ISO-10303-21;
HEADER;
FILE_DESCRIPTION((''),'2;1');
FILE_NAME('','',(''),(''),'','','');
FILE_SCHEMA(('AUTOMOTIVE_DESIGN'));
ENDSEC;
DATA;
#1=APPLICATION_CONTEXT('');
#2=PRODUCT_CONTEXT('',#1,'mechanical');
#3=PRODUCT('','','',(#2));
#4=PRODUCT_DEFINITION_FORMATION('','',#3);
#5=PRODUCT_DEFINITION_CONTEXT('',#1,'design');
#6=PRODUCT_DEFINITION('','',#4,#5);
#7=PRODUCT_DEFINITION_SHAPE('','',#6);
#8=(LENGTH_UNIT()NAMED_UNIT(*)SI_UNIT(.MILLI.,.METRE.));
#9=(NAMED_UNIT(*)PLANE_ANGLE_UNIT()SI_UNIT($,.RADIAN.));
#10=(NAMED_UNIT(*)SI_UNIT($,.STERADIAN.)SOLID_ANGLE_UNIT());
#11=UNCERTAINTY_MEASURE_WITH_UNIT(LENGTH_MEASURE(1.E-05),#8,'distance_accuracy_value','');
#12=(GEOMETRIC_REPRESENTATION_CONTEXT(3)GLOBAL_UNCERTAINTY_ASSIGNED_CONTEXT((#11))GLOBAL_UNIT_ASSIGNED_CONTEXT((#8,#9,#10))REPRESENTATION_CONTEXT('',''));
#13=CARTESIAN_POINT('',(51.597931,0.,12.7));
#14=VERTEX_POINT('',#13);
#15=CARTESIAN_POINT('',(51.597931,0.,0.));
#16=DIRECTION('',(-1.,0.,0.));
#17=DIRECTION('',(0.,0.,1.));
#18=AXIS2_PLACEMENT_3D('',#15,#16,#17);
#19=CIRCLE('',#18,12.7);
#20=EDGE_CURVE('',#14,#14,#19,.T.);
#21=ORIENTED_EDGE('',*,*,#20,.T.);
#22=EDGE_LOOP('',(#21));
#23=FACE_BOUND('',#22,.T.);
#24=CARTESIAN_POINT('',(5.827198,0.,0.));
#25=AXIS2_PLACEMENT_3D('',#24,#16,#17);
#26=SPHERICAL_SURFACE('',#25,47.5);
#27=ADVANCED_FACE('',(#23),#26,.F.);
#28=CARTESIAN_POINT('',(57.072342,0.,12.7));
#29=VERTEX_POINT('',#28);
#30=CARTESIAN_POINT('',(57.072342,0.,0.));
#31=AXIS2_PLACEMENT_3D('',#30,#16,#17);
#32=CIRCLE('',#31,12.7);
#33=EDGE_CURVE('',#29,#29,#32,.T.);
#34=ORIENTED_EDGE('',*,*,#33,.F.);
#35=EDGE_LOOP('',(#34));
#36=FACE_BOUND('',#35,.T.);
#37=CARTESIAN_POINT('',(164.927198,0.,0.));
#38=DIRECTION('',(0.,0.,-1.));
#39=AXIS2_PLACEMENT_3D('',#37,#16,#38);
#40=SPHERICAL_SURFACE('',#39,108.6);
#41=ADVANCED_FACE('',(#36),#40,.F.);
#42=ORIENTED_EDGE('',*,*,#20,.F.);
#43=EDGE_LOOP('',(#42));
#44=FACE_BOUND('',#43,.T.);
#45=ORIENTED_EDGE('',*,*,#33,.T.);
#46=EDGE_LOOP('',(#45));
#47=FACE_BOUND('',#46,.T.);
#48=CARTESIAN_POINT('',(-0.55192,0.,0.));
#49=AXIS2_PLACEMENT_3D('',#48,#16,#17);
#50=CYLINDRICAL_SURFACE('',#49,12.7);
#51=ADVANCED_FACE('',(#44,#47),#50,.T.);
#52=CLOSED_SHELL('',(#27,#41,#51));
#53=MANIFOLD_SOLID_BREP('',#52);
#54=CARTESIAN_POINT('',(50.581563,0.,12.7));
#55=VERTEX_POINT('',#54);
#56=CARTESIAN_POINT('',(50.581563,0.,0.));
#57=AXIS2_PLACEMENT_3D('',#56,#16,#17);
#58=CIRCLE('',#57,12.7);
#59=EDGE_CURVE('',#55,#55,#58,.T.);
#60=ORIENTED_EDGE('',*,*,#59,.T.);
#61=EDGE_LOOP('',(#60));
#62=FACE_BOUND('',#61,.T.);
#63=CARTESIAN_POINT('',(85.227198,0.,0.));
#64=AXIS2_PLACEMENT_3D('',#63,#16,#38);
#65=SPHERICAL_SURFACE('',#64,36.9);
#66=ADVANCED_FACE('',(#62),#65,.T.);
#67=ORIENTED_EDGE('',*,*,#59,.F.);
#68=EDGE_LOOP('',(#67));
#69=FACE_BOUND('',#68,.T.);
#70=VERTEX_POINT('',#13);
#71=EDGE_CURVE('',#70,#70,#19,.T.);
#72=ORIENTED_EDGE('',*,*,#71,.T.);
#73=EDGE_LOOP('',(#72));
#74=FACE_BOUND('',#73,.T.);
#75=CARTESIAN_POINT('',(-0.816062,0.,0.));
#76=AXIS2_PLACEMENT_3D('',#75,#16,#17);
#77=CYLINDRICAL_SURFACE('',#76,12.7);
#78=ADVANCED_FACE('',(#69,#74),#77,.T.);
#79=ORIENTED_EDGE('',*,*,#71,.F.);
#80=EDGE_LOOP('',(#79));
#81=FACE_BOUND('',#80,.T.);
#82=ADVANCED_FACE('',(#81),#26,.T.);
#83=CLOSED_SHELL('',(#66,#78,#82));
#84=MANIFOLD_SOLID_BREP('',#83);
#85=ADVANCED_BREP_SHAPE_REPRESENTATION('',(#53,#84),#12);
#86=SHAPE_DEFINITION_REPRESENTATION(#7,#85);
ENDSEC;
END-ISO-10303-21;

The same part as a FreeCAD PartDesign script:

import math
import FreeCAD as App
import Part
import Sketcher

doc = App.newDocument("Part")
body = doc.addObject("PartDesign::Body", "Body")

# Sketch on XZ plane
sketch1 = body.newObject("Sketcher::SketchObject", "Sketch")
sketch1.AttachmentSupport = (doc.getObject("XZ_Plane"), [""])
sketch1.MapMode = "FlatFace"
sketch1.addGeometry([
    Part.ArcOfCircle(Part.Circle(App.Vector(85.2, 0, 0), App.Vector(0, 0, 1), 36.9), math.radians(180), math.radians(200)),
    Part.LineSegment(App.Vector(48.3, 0, 0), App.Vector(53.3, 0, 0)),
    Part.ArcOfCircle(Part.Circle(App.Vector(5.8, 0, 0), App.Vector(0, 0, 1), 47.5), math.radians(-15.51), math.radians(0)),
    Part.LineSegment(App.Vector(51.6, -12.7, 0), App.Vector(50.6, -12.7, 0)),
], False)
sketch1.addConstraint([
    Sketcher.Constraint("Coincident", 0, 1, 1, 1),
    Sketcher.Constraint("Coincident", 1, 2, 2, 2),
    Sketcher.Constraint("Coincident", 2, 1, 3, 1),
    Sketcher.Constraint("Coincident", 3, 2, 0, 2),
    Sketcher.Constraint("Horizontal", 1),
    Sketcher.Constraint("Horizontal", 3),
    Sketcher.Constraint("PointOnObject", 0, 3, -1),
    Sketcher.Constraint("PointOnObject", 2, 3, -1),
    Sketcher.Constraint("PointOnObject", 0, 1, -1),
    Sketcher.Constraint("Radius", 0, 36.9),
    Sketcher.Constraint("Radius", 2, 47.5),
    Sketcher.Constraint("DistanceX", 1, 1, 1, 2, 5.0),
    Sketcher.Constraint("DistanceY", 2, 1, -1, 1, 12.7),
    Sketcher.Constraint("DistanceX", -1, 1, 0, 3, 85.227198),
])
revolution = body.newObject("PartDesign::Revolution", "Revolution")
revolution.Profile = sketch1
revolution.ReferenceAxis = (sketch1, ["H_Axis"])
revolution.Angle = 360
body2 = doc.addObject("PartDesign::Body", "Body001")

# Sketch on XZ plane
sketch2 = body2.newObject("Sketcher::SketchObject", "Sketch001")
sketch2.AttachmentSupport = (doc.getObject("XZ_Plane001"), [""])
sketch2.MapMode = "FlatFace"
sketch2.addGeometry([
    Part.LineSegment(App.Vector(57.1, -12.7, 0), App.Vector(51.6, -12.7, 0)),
    Part.ArcOfCircle(Part.Circle(App.Vector(5.8, 0, 0), App.Vector(0, 0, 1), 47.5), math.radians(-15.51), math.radians(0)),
    Part.LineSegment(App.Vector(53.3, 0, 0), App.Vector(56.3, 0, 0)),
    Part.ArcOfCircle(Part.Circle(App.Vector(164.9, 0, 0), App.Vector(0, 0, 1), 108.6), math.radians(180), math.radians(186.72)),
], False)
sketch2.addConstraint([
    Sketcher.Constraint("Coincident", 0, 2, 1, 1),
    Sketcher.Constraint("Coincident", 1, 2, 2, 1),
    Sketcher.Constraint("Coincident", 2, 2, 3, 1),
    Sketcher.Constraint("Coincident", 3, 2, 0, 1),
    Sketcher.Constraint("Horizontal", 0),
    Sketcher.Constraint("Horizontal", 2),
    Sketcher.Constraint("PointOnObject", 1, 3, -1),
    Sketcher.Constraint("PointOnObject", 3, 3, -1),
    Sketcher.Constraint("PointOnObject", 1, 2, -1),
    Sketcher.Constraint("Radius", 1, 47.5),
    Sketcher.Constraint("Radius", 3, 108.6),
    Sketcher.Constraint("DistanceX", 2, 1, 2, 2, 3.0),
    Sketcher.Constraint("DistanceY", 0, 2, -1, 1, 12.7),
    Sketcher.Constraint("DistanceX", -1, 1, 1, 3, 5.827198),
])
revolution2 = body2.newObject("PartDesign::Revolution", "Revolution001")
revolution2.Profile = sketch2
revolution2.ReferenceAxis = (sketch2, ["H_Axis"])
revolution2.Angle = 360

doc.recompute()
